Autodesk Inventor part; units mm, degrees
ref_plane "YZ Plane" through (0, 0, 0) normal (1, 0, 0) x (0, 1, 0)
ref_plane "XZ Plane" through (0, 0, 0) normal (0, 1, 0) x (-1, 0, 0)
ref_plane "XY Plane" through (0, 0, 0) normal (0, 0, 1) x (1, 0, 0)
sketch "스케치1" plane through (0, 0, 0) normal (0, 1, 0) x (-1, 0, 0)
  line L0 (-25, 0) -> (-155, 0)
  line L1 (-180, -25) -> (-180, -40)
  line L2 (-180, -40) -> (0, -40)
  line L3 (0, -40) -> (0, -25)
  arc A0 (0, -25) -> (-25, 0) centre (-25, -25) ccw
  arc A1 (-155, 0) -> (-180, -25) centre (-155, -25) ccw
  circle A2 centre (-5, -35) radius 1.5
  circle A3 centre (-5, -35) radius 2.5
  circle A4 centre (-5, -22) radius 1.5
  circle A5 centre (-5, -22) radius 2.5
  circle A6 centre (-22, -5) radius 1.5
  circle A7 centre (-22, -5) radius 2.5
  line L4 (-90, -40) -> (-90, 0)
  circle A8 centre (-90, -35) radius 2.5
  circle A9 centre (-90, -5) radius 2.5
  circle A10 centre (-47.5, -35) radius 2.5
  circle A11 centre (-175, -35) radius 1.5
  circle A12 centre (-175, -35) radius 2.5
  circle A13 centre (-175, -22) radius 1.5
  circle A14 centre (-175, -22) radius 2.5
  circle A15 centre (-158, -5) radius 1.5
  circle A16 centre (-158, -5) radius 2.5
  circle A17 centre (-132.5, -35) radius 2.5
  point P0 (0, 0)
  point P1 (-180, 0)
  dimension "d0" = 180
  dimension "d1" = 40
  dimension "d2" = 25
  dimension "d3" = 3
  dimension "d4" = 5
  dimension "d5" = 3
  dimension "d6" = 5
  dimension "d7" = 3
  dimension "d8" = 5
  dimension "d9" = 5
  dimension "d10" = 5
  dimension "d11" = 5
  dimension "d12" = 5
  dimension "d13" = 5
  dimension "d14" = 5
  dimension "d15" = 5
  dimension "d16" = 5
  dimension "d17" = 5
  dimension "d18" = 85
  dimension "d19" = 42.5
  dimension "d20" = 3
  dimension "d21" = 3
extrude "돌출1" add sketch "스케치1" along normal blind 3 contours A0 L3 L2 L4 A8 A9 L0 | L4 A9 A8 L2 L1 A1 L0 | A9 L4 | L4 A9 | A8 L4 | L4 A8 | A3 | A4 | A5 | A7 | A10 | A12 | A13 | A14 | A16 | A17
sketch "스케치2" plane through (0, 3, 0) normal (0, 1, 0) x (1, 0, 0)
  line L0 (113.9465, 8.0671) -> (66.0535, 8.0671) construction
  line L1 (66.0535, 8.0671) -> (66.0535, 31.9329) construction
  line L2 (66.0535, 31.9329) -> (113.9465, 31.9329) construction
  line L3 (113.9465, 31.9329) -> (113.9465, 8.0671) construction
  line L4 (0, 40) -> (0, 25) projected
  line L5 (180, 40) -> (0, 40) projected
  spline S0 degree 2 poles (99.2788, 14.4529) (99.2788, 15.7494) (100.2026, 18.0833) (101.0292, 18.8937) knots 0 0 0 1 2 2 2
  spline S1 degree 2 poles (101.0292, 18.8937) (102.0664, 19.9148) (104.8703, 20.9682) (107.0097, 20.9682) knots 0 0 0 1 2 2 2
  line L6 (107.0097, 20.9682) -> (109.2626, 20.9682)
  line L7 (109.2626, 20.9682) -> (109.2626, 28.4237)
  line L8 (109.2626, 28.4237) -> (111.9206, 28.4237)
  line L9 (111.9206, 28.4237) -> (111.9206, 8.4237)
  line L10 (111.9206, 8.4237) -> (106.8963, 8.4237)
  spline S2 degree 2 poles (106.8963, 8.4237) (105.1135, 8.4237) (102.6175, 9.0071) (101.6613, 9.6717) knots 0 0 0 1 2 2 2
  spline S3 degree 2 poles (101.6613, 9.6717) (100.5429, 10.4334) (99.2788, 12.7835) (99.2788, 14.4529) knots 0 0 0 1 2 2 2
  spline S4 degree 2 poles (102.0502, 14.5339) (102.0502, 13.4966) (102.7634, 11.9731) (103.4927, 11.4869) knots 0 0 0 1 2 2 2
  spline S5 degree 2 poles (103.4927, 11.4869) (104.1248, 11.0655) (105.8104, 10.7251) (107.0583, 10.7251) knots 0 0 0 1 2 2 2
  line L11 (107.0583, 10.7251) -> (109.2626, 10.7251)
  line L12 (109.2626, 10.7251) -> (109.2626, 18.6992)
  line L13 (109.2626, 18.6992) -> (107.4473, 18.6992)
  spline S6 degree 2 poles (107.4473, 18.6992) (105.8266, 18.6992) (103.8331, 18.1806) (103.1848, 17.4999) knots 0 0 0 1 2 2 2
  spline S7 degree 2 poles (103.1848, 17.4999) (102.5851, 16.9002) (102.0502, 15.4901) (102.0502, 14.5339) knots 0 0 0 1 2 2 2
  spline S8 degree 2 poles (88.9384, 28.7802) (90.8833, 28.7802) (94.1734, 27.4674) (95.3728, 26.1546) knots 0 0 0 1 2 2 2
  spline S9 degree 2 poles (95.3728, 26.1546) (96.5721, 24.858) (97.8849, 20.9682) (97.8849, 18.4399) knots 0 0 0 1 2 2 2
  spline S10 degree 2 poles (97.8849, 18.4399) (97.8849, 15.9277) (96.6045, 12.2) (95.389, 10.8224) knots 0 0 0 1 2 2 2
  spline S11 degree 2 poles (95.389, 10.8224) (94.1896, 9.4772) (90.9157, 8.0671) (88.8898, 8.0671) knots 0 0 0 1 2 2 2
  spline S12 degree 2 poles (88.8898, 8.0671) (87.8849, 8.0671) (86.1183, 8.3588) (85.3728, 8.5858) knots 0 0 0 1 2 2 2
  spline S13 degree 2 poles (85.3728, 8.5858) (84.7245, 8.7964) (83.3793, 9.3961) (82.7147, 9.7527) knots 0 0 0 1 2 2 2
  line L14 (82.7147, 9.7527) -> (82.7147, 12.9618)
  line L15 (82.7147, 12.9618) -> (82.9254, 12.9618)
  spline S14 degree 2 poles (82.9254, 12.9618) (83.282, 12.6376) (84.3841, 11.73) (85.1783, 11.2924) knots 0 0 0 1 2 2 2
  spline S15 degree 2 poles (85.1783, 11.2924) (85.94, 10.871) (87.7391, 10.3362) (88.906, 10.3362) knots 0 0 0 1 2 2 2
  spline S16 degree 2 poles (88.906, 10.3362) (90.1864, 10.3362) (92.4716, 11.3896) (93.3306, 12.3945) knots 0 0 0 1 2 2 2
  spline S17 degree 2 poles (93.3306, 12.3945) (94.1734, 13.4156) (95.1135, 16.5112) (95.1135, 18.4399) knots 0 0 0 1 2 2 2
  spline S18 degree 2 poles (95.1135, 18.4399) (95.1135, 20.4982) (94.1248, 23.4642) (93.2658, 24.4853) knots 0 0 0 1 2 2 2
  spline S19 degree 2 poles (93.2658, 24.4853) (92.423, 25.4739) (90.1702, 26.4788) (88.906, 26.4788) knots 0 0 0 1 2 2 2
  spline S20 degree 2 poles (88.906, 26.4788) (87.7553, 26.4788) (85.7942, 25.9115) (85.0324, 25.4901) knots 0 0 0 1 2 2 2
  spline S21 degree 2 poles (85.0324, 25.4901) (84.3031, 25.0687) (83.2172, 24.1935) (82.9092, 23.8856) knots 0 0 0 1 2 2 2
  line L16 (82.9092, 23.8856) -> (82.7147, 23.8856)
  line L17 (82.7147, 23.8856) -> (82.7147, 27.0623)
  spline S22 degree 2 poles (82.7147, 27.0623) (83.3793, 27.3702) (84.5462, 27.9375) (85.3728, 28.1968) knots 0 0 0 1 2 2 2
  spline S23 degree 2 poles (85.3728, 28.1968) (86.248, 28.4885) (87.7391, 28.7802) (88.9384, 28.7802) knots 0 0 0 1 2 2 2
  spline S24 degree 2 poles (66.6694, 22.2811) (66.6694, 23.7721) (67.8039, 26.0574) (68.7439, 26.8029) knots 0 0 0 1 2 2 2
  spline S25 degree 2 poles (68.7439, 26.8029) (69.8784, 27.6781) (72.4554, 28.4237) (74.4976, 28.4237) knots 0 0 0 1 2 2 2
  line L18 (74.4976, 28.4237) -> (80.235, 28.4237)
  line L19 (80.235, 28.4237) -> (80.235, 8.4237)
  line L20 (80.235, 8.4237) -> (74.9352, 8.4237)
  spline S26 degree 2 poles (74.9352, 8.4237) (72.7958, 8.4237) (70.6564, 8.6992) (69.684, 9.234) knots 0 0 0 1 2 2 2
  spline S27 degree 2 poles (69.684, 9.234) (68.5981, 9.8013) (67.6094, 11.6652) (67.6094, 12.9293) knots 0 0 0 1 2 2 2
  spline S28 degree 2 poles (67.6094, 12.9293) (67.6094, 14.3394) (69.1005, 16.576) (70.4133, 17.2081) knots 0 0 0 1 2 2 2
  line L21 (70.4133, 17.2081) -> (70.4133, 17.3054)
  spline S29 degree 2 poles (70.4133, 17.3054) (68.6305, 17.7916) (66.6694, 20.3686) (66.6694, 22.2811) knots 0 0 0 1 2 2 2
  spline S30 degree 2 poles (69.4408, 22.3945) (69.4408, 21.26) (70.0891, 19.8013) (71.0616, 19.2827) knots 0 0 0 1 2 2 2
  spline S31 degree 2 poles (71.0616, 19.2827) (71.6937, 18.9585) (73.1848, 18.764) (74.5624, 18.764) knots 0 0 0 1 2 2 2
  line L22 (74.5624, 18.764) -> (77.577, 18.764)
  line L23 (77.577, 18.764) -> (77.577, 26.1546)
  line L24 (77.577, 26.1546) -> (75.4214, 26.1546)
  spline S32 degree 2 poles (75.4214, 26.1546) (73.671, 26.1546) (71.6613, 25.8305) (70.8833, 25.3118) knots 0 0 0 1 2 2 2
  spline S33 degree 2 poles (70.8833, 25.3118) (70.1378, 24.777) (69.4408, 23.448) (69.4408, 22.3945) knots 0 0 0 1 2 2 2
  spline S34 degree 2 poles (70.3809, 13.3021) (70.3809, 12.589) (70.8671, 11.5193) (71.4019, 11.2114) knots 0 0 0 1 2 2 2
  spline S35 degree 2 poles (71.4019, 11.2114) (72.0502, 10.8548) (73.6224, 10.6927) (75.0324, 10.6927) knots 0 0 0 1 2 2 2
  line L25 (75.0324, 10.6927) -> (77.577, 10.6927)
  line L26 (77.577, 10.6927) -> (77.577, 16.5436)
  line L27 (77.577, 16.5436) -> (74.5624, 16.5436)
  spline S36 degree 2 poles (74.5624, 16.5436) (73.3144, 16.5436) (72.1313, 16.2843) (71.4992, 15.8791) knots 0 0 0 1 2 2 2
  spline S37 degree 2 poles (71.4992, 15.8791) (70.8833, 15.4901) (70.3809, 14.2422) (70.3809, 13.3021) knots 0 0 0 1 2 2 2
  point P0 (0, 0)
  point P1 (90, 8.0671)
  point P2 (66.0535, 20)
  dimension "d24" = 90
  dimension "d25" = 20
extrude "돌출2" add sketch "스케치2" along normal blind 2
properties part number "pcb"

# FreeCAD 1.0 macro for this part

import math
import FreeCAD as App
import Part
import Sketcher

V = App.Vector

doc = App.newDocument("Part")
body = doc.addObject("PartDesign::Body", "Body")

sketch1 = body.newObject("Sketcher::SketchObject", "Sketch")
sketch1.AttachmentSupport = (doc.getObject("XZ_Plane"), [""])
sketch1.MapMode = "FlatFace"
sketch1.addGeometry(Part.ArcOfCircle(Part.Circle(V(25, -25, 0), V(0, 0, 1), 25), math.radians(90), math.radians(180)), False)
sketch1.addGeometry(Part.LineSegment(V(25, 0, 0), V(155, 0, 0)), False)
sketch1.addGeometry(Part.ArcOfCircle(Part.Circle(V(155, -25, 0), V(0, 0, 1), 25), math.radians(0), math.radians(90)), False)
sketch1.addGeometry(Part.LineSegment(V(180, -25, 0), V(180, -40, 0)), False)
sketch1.addGeometry(Part.LineSegment(V(180, -40, 0), V(0, -40, 0)), False)
sketch1.addGeometry(Part.LineSegment(V(0, -40, 0), V(0, -25, 0)), False)
sketch1.addGeometry(Part.Circle(V(5, -35, 0), V(0, 0, 1), 1.5), False)
sketch1.addGeometry(Part.Circle(V(22, -5, 0), V(0, 0, 1), 1.5), False)
sketch1.addGeometry(Part.Circle(V(158, -5, 0), V(0, 0, 1), 1.5), False)
sketch1.addGeometry(Part.Circle(V(175, -35, 0), V(0, 0, 1), 1.5), False)
sketch1.addConstraint(Sketcher.Constraint("Tangent", 0, 1, 1, 1))
sketch1.addConstraint(Sketcher.Constraint("Tangent", 1, 2, 2, 2))
sketch1.addConstraint(Sketcher.Constraint("Tangent", 2, 1, 3, 1))
sketch1.addConstraint(Sketcher.Constraint("Coincident", 3, 2, 4, 1))
sketch1.addConstraint(Sketcher.Constraint("Coincident", 4, 2, 5, 1))
sketch1.addConstraint(Sketcher.Constraint("Tangent", 5, 2, 0, 2))
sketch1.addConstraint(Sketcher.Constraint("Horizontal", 1))
sketch1.addConstraint(Sketcher.Constraint("Vertical", 3))
sketch1.addConstraint(Sketcher.Constraint("Horizontal", 4))
sketch1.addConstraint(Sketcher.Constraint("Vertical", 5))
sketch1.addConstraint(Sketcher.Constraint("Equal", 0, 2))
sketch1.addConstraint(Sketcher.Constraint("Equal", 6, 7))
sketch1.addConstraint(Sketcher.Constraint("Equal", 7, 8))
sketch1.addConstraint(Sketcher.Constraint("Equal", 8, 9))
sketch1.addConstraint(Sketcher.Constraint("PointOnObject", 0, 1, -1))
sketch1.addConstraint(Sketcher.Constraint("PointOnObject", 4, 2, -2))
sketch1.addConstraint(Sketcher.Constraint("Horizontal", 7, 3, 8, 3))
sketch1.addConstraint(Sketcher.Constraint("Horizontal", 6, 3, 9, 3))
sketch1.addConstraint(Sketcher.Constraint("Diameter", 6, 3.0))
sketch1.addConstraint(Sketcher.Constraint("Radius", 0, 25.0))
sketch1.addConstraint(Sketcher.Constraint("DistanceX", 4, 2, 4, 1, 180.0))
sketch1.addConstraint(Sketcher.Constraint("DistanceX", -1, 1, 6, 3, 5.0))
sketch1.addConstraint(Sketcher.Constraint("DistanceY", 7, 3, -1, 1, 5.0))
sketch1.addConstraint(Sketcher.Constraint("DistanceY", 3, 2, -1, 1, 40.0))
sketch1.addConstraint(Sketcher.Constraint("DistanceX", 7, 3, 0, 3, 3.0))
sketch1.addConstraint(Sketcher.Constraint("DistanceX", 2, 3, 8, 3, 3.0))
sketch1.addConstraint(Sketcher.Constraint("DistanceX", 9, 3, 2, 1, 5.0))
sketch1.addConstraint(Sketcher.Constraint("DistanceY", 3, 2, 9, 3, 5.0))
pad1 = body.newObject("PartDesign::Pad", "Pad")
pad1.Profile = sketch1
pad1.Length = 3
pad1.Reversed = True

sketch2 = body.newObject("Sketcher::SketchObject", "Sketch001")
sketch2.AttachmentSupport = (doc.getObject("XZ_Plane"), [""])
sketch2.MapMode = "FlatFace"
sketch2.AttachmentOffset = App.Placement(V(0, 0, -3), App.Rotation())
sketch2.addGeometry(Part.BSplineCurve([V(99.2788, -14.4529, 0), V(99.2788, -15.7494, 0), V(100.2026, -18.0833, 0), V(101.0292, -18.8937, 0)], [3, 1, 3], [0, 1, 2], False, 2, [1, 1, 1, 1], False), False)
sketch2.addGeometry(Part.BSplineCurve([V(101.6613, -9.6717, 0), V(100.5429, -10.4334, 0), V(99.2788, -12.7835, 0), V(99.2788, -14.4529, 0)], [3, 1, 3], [0, 1, 2], False, 2, [1, 1, 1, 1], False), False)
sketch2.addGeometry(Part.BSplineCurve([V(106.8963, -8.4237, 0), V(105.1135, -8.4237, 0), V(102.6175, -9.0071, 0), V(101.6613, -9.6717, 0)], [3, 1, 3], [0, 1, 2], False, 2, [1, 1, 1, 1], False), False)
sketch2.addGeometry(Part.LineSegment(V(106.8963, -8.4237, 0), V(111.9206, -8.4237, 0)), False)
sketch2.addGeometry(Part.LineSegment(V(111.9206, -8.4237, 0), V(111.9206, -28.4237, 0)), False)
sketch2.addGeometry(Part.LineSegment(V(111.9206, -28.4237, 0), V(109.2626, -28.4237, 0)), False)
sketch2.addGeometry(Part.LineSegment(V(109.2626, -28.4237, 0), V(109.2626, -20.9682, 0)), False)
sketch2.addGeometry(Part.LineSegment(V(109.2626, -20.9682, 0), V(107.0097, -20.9682, 0)), False)
sketch2.addGeometry(Part.BSplineCurve([V(101.0292, -18.8937, 0), V(102.0664, -19.9148, 0), V(104.8703, -20.9682, 0), V(107.0097, -20.9682, 0)], [3, 1, 3], [0, 1, 2], False, 2, [1, 1, 1, 1], False), False)
sketch2.addGeometry(Part.BSplineCurve([V(102.0502, -14.5339, 0), V(102.0502, -13.4966, 0), V(102.7634, -11.9731, 0), V(103.4927, -11.4869, 0)], [3, 1, 3], [0, 1, 2], False, 2, [1, 1, 1, 1], False), False)
sketch2.addGeometry(Part.BSplineCurve([V(103.1848, -17.4999, 0), V(102.5851, -16.9002, 0), V(102.0502, -15.4901, 0), V(102.0502, -14.5339, 0)], [3, 1, 3], [0, 1, 2], False, 2, [1, 1, 1, 1], False), False)
sketch2.addGeometry(Part.BSplineCurve([V(107.4473, -18.6992, 0), V(105.8266, -18.6992, 0), V(103.8331, -18.1806, 0), V(103.1848, -17.4999, 0)], [3, 1, 3], [0, 1, 2], False, 2, [1, 1, 1, 1], False), False)
sketch2.addGeometry(Part.LineSegment(V(107.4473, -18.6992, 0), V(109.2626, -18.6992, 0)), False)
sketch2.addGeometry(Part.LineSegment(V(109.2626, -18.6992, 0), V(109.2626, -10.7251, 0)), False)
sketch2.addGeometry(Part.LineSegment(V(109.2626, -10.7251, 0), V(107.0583, -10.7251, 0)), False)
sketch2.addGeometry(Part.BSplineCurve([V(103.4927, -11.4869, 0), V(104.1248, -11.0655, 0), V(105.8104, -10.7251, 0), V(107.0583, -10.7251, 0)], [3, 1, 3], [0, 1, 2], False, 2, [1, 1, 1, 1], False), False)
sketch2.addGeometry(Part.BSplineCurve([V(88.9384, -28.7802, 0), V(90.8833, -28.7802, 0), V(94.1734, -27.4674, 0), V(95.3728, -26.1546, 0)], [3, 1, 3], [0, 1, 2], False, 2, [1, 1, 1, 1], False), False)
sketch2.addGeometry(Part.BSplineCurve([V(85.3728, -28.1968, 0), V(86.248, -28.4885, 0), V(87.7391, -28.7802, 0), V(88.9384, -28.7802, 0)], [3, 1, 3], [0, 1, 2], False, 2, [1, 1, 1, 1], False), False)
sketch2.addGeometry(Part.BSplineCurve([V(82.7147, -27.0623, 0), V(83.3793, -27.3702, 0), V(84.5462, -27.9375, 0), V(85.3728, -28.1968, 0)], [3, 1, 3], [0, 1, 2], False, 2, [1, 1, 1, 1], False), False)
sketch2.addGeometry(Part.LineSegment(V(82.7147, -27.0623, 0), V(82.7147, -23.8856, 0)), False)
sketch2.addGeometry(Part.LineSegment(V(82.7147, -23.8856, 0), V(82.9092, -23.8856, 0)), False)
sketch2.addGeometry(Part.BSplineCurve([V(85.0324, -25.4901, 0), V(84.3031, -25.0687, 0), V(83.2172, -24.1935, 0), V(82.9092, -23.8856, 0)], [3, 1, 3], [0, 1, 2], False, 2, [1, 1, 1, 1], False), False)
sketch2.addGeometry(Part.BSplineCurve([V(88.906, -26.4788, 0), V(87.7553, -26.4788, 0), V(85.7942, -25.9115, 0), V(85.0324, -25.4901, 0)], [3, 1, 3], [0, 1, 2], False, 2, [1, 1, 1, 1], False), False)
sketch2.addGeometry(Part.BSplineCurve([V(93.2658, -24.4853, 0), V(92.423, -25.4739, 0), V(90.1702, -26.4788, 0), V(88.906, -26.4788, 0)], [3, 1, 3], [0, 1, 2], False, 2, [1, 1, 1, 1], False), False)
sketch2.addGeometry(Part.BSplineCurve([V(95.1135, -18.4399, 0), V(95.1135, -20.4982, 0), V(94.1248, -23.4642, 0), V(93.2658, -24.4853, 0)], [3, 1, 3], [0, 1, 2], False, 2, [1, 1, 1, 1], False), False)
sketch2.addGeometry(Part.BSplineCurve([V(93.3306, -12.3945, 0), V(94.1734, -13.4156, 0), V(95.1135, -16.5112, 0), V(95.1135, -18.4399, 0)], [3, 1, 3], [0, 1, 2], False, 2, [1, 1, 1, 1], False), False)
sketch2.addGeometry(Part.BSplineCurve([V(88.906, -10.3362, 0), V(90.1864, -10.3362, 0), V(92.4716, -11.3896, 0), V(93.3306, -12.3945, 0)], [3, 1, 3], [0, 1, 2], False, 2, [1, 1, 1, 1], False), False)
sketch2.addGeometry(Part.BSplineCurve([V(85.1783, -11.2924, 0), V(85.94, -10.871, 0), V(87.7391, -10.3362, 0), V(88.906, -10.3362, 0)], [3, 1, 3], [0, 1, 2], False, 2, [1, 1, 1, 1], False), False)
sketch2.addGeometry(Part.BSplineCurve([V(82.9254, -12.9618, 0), V(83.282, -12.6376, 0), V(84.3841, -11.73, 0), V(85.1783, -11.2924, 0)], [3, 1, 3], [0, 1, 2], False, 2, [1, 1, 1, 1], False), False)
sketch2.addGeometry(Part.LineSegment(V(82.9254, -12.9618, 0), V(82.7147, -12.9618, 0)), False)
sketch2.addGeometry(Part.LineSegment(V(82.7147, -12.9618, 0), V(82.7147, -9.7527, 0)), False)
sketch2.addGeometry(Part.BSplineCurve([V(85.3728, -8.5858, 0), V(84.7245, -8.7964, 0), V(83.3793, -9.3961, 0), V(82.7147, -9.7527, 0)], [3, 1, 3], [0, 1, 2], False, 2, [1, 1, 1, 1], False), False)
sketch2.addGeometry(Part.BSplineCurve([V(88.8898, -8.0671, 0), V(87.8849, -8.0671, 0), V(86.1183, -8.3588, 0), V(85.3728, -8.5858, 0)], [3, 1, 3], [0, 1, 2], False, 2, [1, 1, 1, 1], False), False)
sketch2.addGeometry(Part.BSplineCurve([V(95.389, -10.8224, 0), V(94.1896, -9.4772, 0), V(90.9157, -8.0671, 0), V(88.8898, -8.0671, 0)], [3, 1, 3], [0, 1, 2], False, 2, [1, 1, 1, 1], False), False)
sketch2.addGeometry(Part.BSplineCurve([V(97.8849, -18.4399, 0), V(97.8849, -15.9277, 0), V(96.6045, -12.2, 0), V(95.389, -10.8224, 0)], [3, 1, 3], [0, 1, 2], False, 2, [1, 1, 1, 1], False), False)
sketch2.addGeometry(Part.BSplineCurve([V(95.3728, -26.1546, 0), V(96.5721, -24.858, 0), V(97.8849, -20.9682, 0), V(97.8849, -18.4399, 0)], [3, 1, 3], [0, 1, 2], False, 2, [1, 1, 1, 1], False), False)
sketch2.addGeometry(Part.BSplineCurve([V(66.6694, -22.2811, 0), V(66.6694, -23.7721, 0), V(67.8039, -26.0574, 0), V(68.7439, -26.8029, 0)], [3, 1, 3], [0, 1, 2], False, 2, [1, 1, 1, 1], False), False)
sketch2.addGeometry(Part.BSplineCurve([V(70.4133, -17.3054, 0), V(68.6305, -17.7916, 0), V(66.6694, -20.3686, 0), V(66.6694, -22.2811, 0)], [3, 1, 3], [0, 1, 2], False, 2, [1, 1, 1, 1], False), False)
sketch2.addGeometry(Part.LineSegment(V(70.4133, -17.3054, 0), V(70.4133, -17.2081, 0)), False)
sketch2.addGeometry(Part.BSplineCurve([V(67.6094, -12.9293, 0), V(67.6094, -14.3394, 0), V(69.1005, -16.576, 0), V(70.4133, -17.2081, 0)], [3, 1, 3], [0, 1, 2], False, 2, [1, 1, 1, 1], False), False)
sketch2.addGeometry(Part.BSplineCurve([V(69.684, -9.234, 0), V(68.5981, -9.8013, 0), V(67.6094, -11.6652, 0), V(67.6094, -12.9293, 0)], [3, 1, 3], [0, 1, 2], False, 2, [1, 1, 1, 1], False), False)
sketch2.addGeometry(Part.BSplineCurve([V(74.9352, -8.4237, 0), V(72.7958, -8.4237, 0), V(70.6564, -8.6992, 0), V(69.684, -9.234, 0)], [3, 1, 3], [0, 1, 2], False, 2, [1, 1, 1, 1], False), False)
sketch2.addGeometry(Part.LineSegment(V(74.9352, -8.4237, 0), V(80.235, -8.4237, 0)), False)
sketch2.addGeometry(Part.LineSegment(V(80.235, -8.4237, 0), V(80.235, -28.4237, 0)), False)
sketch2.addGeometry(Part.LineSegment(V(80.235, -28.4237, 0), V(74.4976, -28.4237, 0)), False)
sketch2.addGeometry(Part.BSplineCurve([V(68.7439, -26.8029, 0), V(69.8784, -27.6781, 0), V(72.4554, -28.4237, 0), V(74.4976, -28.4237, 0)], [3, 1, 3], [0, 1, 2], False, 2, [1, 1, 1, 1], False), False)
sketch2.addGeometry(Part.BSplineCurve([V(70.3809, -13.3021, 0), V(70.3809, -12.589, 0), V(70.8671, -11.5193, 0), V(71.4019, -11.2114, 0)], [3, 1, 3], [0, 1, 2], False, 2, [1, 1, 1, 1], False), False)
sketch2.addGeometry(Part.BSplineCurve([V(71.4992, -15.8791, 0), V(70.8833, -15.4901, 0), V(70.3809, -14.2422, 0), V(70.3809, -13.3021, 0)], [3, 1, 3], [0, 1, 2], False, 2, [1, 1, 1, 1], False), False)
sketch2.addGeometry(Part.BSplineCurve([V(74.5624, -16.5436, 0), V(73.3144, -16.5436, 0), V(72.1313, -16.2843, 0), V(71.4992, -15.8791, 0)], [3, 1, 3], [0, 1, 2], False, 2, [1, 1, 1, 1], False), False)
sketch2.addGeometry(Part.LineSegment(V(74.5624, -16.5436, 0), V(77.577, -16.5436, 0)), False)
sketch2.addGeometry(Part.LineSegment(V(77.577, -16.5436, 0), V(77.577, -10.6927, 0)), False)
sketch2.addGeometry(Part.LineSegment(V(77.577, -10.6927, 0), V(75.0324, -10.6927, 0)), False)
sketch2.addGeometry(Part.BSplineCurve([V(71.4019, -11.2114, 0), V(72.0502, -10.8548, 0), V(73.6224, -10.6927, 0), V(75.0324, -10.6927, 0)], [3, 1, 3], [0, 1, 2], False, 2, [1, 1, 1, 1], False), False)
sketch2.addGeometry(Part.BSplineCurve([V(69.4408, -22.3945, 0), V(69.4408, -21.26, 0), V(70.0891, -19.8013, 0), V(71.0616, -19.2827, 0)], [3, 1, 3], [0, 1, 2], False, 2, [1, 1, 1, 1], False), False)
sketch2.addGeometry(Part.BSplineCurve([V(70.8833, -25.3118, 0), V(70.1378, -24.777, 0), V(69.4408, -23.448, 0), V(69.4408, -22.3945, 0)], [3, 1, 3], [0, 1, 2], False, 2, [1, 1, 1, 1], False), False)
sketch2.addGeometry(Part.BSplineCurve([V(75.4214, -26.1546, 0), V(73.671, -26.1546, 0), V(71.6613, -25.8305, 0), V(70.8833, -25.3118, 0)], [3, 1, 3], [0, 1, 2], False, 2, [1, 1, 1, 1], False), False)
sketch2.addGeometry(Part.LineSegment(V(75.4214, -26.1546, 0), V(77.577, -26.1546, 0)), False)
sketch2.addGeometry(Part.LineSegment(V(77.577, -26.1546, 0), V(77.577, -18.764, 0)), False)
sketch2.addGeometry(Part.LineSegment(V(77.577, -18.764, 0), V(74.5624, -18.764, 0)), False)
sketch2.addGeometry(Part.BSplineCurve([V(71.0616, -19.2827, 0), V(71.6937, -18.9585, 0), V(73.1848, -18.764, 0), V(74.5624, -18.764, 0)], [3, 1, 3], [0, 1, 2], False, 2, [1, 1, 1, 1], False), False)
sketch2.addConstraint(Sketcher.Constraint("Block", 0))
sketch2.addConstraint(Sketcher.Constraint("Block", 1))
sketch2.addConstraint(Sketcher.Constraint("Block", 2))
sketch2.addConstraint(Sketcher.Constraint("Block", 8))
sketch2.addConstraint(Sketcher.Constraint("Block", 9))
sketch2.addConstraint(Sketcher.Constraint("Block", 10))
sketch2.addConstraint(Sketcher.Constraint("Block", 11))
sketch2.addConstraint(Sketcher.Constraint("Block", 15))
sketch2.addConstraint(Sketcher.Constraint("Block", 16))
sketch2.addConstraint(Sketcher.Constraint("Block", 17))
sketch2.addConstraint(Sketcher.Constraint("Block", 18))
sketch2.addConstraint(Sketcher.Constraint("Block", 21))
sketch2.addConstraint(Sketcher.Constraint("Block", 22))
sketch2.addConstraint(Sketcher.Constraint("Block", 23))
sketch2.addConstraint(Sketcher.Constraint("Block", 24))
sketch2.addConstraint(Sketcher.Constraint("Block", 25))
sketch2.addConstraint(Sketcher.Constraint("Block", 26))
sketch2.addConstraint(Sketcher.Constraint("Block", 27))
sketch2.addConstraint(Sketcher.Constraint("Block", 28))
sketch2.addConstraint(Sketcher.Constraint("Block", 31))
sketch2.addConstraint(Sketcher.Constraint("Block", 32))
sketch2.addConstraint(Sketcher.Constraint("Block", 33))
sketch2.addConstraint(Sketcher.Constraint("Block", 34))
sketch2.addConstraint(Sketcher.Constraint("Block", 35))
sketch2.addConstraint(Sketcher.Constraint("Block", 36))
sketch2.addConstraint(Sketcher.Constraint("Block", 37))
sketch2.addConstraint(Sketcher.Constraint("Block", 39))
sketch2.addConstraint(Sketcher.Constraint("Block", 40))
sketch2.addConstraint(Sketcher.Constraint("Block", 41))
sketch2.addConstraint(Sketcher.Constraint("Block", 45))
sketch2.addConstraint(Sketcher.Constraint("Block", 46))
sketch2.addConstraint(Sketcher.Constraint("Block", 47))
sketch2.addConstraint(Sketcher.Constraint("Block", 48))
sketch2.addConstraint(Sketcher.Constraint("Block", 52))
sketch2.addConstraint(Sketcher.Constraint("Block", 53))
sketch2.addConstraint(Sketcher.Constraint("Block", 54))
sketch2.addConstraint(Sketcher.Constraint("Block", 55))
sketch2.addConstraint(Sketcher.Constraint("Block", 59))
sketch2.addConstraint(Sketcher.Constraint("Coincident", 2, 1, 3, 1))
sketch2.addConstraint(Sketcher.Constraint("Coincident", 3, 2, 4, 1))
sketch2.addConstraint(Sketcher.Constraint("Coincident", 4, 2, 5, 1))
sketch2.addConstraint(Sketcher.Constraint("Coincident", 5, 2, 6, 1))
sketch2.addConstraint(Sketcher.Constraint("Coincident", 6, 2, 7, 1))
sketch2.addConstraint(Sketcher.Constraint("Coincident", 7, 2, 8, 2))
sketch2.addConstraint(Sketcher.Constraint("Coincident", 11, 1, 12, 1))
sketch2.addConstraint(Sketcher.Constraint("Coincident", 12, 2, 13, 1))
sketch2.addConstraint(Sketcher.Constraint("Coincident", 13, 2, 14, 1))
sketch2.addConstraint(Sketcher.Constraint("Coincident", 14, 2, 15, 2))
sketch2.addConstraint(Sketcher.Constraint("Coincident", 18, 1, 19, 1))
sketch2.addConstraint(Sketcher.Constraint("Coincident", 19, 2, 20, 1))
sketch2.addConstraint(Sketcher.Constraint("Coincident", 20, 2, 21, 2))
sketch2.addConstraint(Sketcher.Constraint("Coincident", 28, 1, 29, 1))
sketch2.addConstraint(Sketcher.Constraint("Coincident", 29, 2, 30, 1))
sketch2.addConstraint(Sketcher.Constraint("Coincident", 30, 2, 31, 2))
sketch2.addConstraint(Sketcher.Constraint("Coincident", 37, 1, 38, 1))
sketch2.addConstraint(Sketcher.Constraint("Coincident", 38, 2, 39, 2))
sketch2.addConstraint(Sketcher.Constraint("Coincident", 41, 1, 42, 1))
sketch2.addConstraint(Sketcher.Constraint("Coincident", 42, 2, 43, 1))
sketch2.addConstraint(Sketcher.Constraint("Coincident", 43, 2, 44, 1))
sketch2.addConstraint(Sketcher.Constraint("Coincident", 44, 2, 45, 2))
sketch2.addConstraint(Sketcher.Constraint("Coincident", 48, 1, 49, 1))
sketch2.addConstraint(Sketcher.Constraint("Coincident", 49, 2, 50, 1))
sketch2.addConstraint(Sketcher.Constraint("Coincident", 50, 2, 51, 1))
sketch2.addConstraint(Sketcher.Constraint("Coincident", 51, 2, 52, 2))
sketch2.addConstraint(Sketcher.Constraint("Coincident", 55, 1, 56, 1))
sketch2.addConstraint(Sketcher.Constraint("Coincident", 56, 2, 57, 1))
sketch2.addConstraint(Sketcher.Constraint("Coincident", 57, 2, 58, 1))
sketch2.addConstraint(Sketcher.Constraint("Coincident", 58, 2, 59, 2))
sketch2.addConstraint(Sketcher.Constraint("Horizontal", 3))
sketch2.addConstraint(Sketcher.Constraint("Vertical", 4))
sketch2.addConstraint(Sketcher.Constraint("Horizontal", 5))
sketch2.addConstraint(Sketcher.Constraint("Vertical", 6))
sketch2.addConstraint(Sketcher.Constraint("Horizontal", 7))
sketch2.addConstraint(Sketcher.Constraint("Horizontal", 12))
sketch2.addConstraint(Sketcher.Constraint("Vertical", 13))
sketch2.addConstraint(Sketcher.Constraint("Horizontal", 14))
sketch2.addConstraint(Sketcher.Constraint("Vertical", 19))
sketch2.addConstraint(Sketcher.Constraint("Horizontal", 20))
sketch2.addConstraint(Sketcher.Constraint("Horizontal", 29))
sketch2.addConstraint(Sketcher.Constraint("Vertical", 30))
sketch2.addConstraint(Sketcher.Constraint("Horizontal", 42))
sketch2.addConstraint(Sketcher.Constraint("Vertical", 43))
sketch2.addConstraint(Sketcher.Constraint("Horizontal", 44))
sketch2.addConstraint(Sketcher.Constraint("Horizontal", 49))
sketch2.addConstraint(Sketcher.Constraint("Vertical", 50))
sketch2.addConstraint(Sketcher.Constraint("Horizontal", 51))
sketch2.addConstraint(Sketcher.Constraint("Horizontal", 56))
sketch2.addConstraint(Sketcher.Constraint("Vertical", 57))
sketch2.addConstraint(Sketcher.Constraint("Horizontal", 58))
sketch2.addConstraint(Sketcher.Constraint("Horizontal", 5, 2, 43, 2))
sketch2.addConstraint(Sketcher.Constraint("Vertical", 6, 2, 12, 2))
sketch2.addConstraint(Sketcher.Constraint("Vertical", 50, 2, 56, 2))
sketch2.addConstraint(Sketcher.Constraint("DistanceX", 5, 2, 5, 1, 2.658))
sketch2.addConstraint(Sketcher.Constraint("DistanceX", 7, 2, 7, 1, 2.253))
sketch2.addConstraint(Sketcher.Constraint("DistanceX", 42, 1, 42, 2, 5.2998))
sketch2.addConstraint(Sketcher.Constraint("DistanceX", 49, 1, 49, 2, 3.0146))
pad2 = body.newObject("PartDesign::Pad", "Pad001")
pad2.Profile = sketch2
pad2.Length = 2
pad2.Reversed = True

doc.recompute()
